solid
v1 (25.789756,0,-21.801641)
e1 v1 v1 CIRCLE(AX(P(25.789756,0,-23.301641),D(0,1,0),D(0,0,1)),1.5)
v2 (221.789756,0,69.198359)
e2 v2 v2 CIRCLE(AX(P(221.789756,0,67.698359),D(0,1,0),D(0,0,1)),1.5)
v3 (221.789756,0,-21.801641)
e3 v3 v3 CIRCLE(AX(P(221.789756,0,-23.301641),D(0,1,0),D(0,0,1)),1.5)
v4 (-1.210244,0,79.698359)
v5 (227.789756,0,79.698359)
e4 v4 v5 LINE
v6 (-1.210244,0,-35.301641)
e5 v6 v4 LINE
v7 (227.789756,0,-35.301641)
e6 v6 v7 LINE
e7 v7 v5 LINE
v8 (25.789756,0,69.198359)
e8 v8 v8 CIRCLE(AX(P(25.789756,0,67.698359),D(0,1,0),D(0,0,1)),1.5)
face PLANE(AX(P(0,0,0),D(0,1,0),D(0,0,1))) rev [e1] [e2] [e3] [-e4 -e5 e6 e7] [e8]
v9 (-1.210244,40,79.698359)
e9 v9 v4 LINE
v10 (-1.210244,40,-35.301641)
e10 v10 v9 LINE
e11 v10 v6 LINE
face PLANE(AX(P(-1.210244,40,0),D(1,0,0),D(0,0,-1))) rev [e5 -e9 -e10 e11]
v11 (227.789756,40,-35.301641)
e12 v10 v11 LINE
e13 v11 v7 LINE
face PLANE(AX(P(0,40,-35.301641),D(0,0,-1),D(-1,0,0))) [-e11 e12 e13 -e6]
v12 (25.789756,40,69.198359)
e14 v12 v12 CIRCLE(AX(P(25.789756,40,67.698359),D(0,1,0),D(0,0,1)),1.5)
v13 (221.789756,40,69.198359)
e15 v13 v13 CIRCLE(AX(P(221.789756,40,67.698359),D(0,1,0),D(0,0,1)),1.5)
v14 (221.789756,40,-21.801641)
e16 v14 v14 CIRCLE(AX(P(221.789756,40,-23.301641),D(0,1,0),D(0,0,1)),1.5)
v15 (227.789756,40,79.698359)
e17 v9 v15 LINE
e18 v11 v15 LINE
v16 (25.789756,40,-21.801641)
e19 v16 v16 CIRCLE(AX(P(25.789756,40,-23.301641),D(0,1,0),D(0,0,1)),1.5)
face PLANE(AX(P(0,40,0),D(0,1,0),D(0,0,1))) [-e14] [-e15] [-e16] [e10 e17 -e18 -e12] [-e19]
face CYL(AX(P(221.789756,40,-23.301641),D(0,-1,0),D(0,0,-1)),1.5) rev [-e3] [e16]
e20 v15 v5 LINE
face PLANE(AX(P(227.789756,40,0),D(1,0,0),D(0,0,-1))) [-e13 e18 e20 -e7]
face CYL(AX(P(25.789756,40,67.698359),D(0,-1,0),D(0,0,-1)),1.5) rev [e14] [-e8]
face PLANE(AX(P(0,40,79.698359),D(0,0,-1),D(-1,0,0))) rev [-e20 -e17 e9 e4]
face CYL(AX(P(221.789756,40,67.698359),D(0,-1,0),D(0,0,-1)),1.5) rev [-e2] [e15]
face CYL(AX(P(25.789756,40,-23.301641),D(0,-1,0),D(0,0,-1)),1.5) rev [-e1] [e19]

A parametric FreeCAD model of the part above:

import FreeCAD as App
import Part
import Sketcher

V = App.Vector

doc = App.newDocument("Part")
params = doc.addObject("Spreadsheet::Sheet", "Params")
for row, (alias, value) in enumerate([
    ("sketch1_diameter", "3 mm"),
    ("sketch1_width", "229 mm"),
    ("sketch1_height", "115 mm"),
    ("pad1_length", "40 mm"),
], start=1):
    params.set(f"A{row}", alias)
    params.set(f"B{row}", "=" + value)
    params.setAlias(f"B{row}", alias)

body = doc.addObject("PartDesign::Body", "Body")

# Sketch on XZ plane
sketch1 = doc.addObject("Sketcher::SketchObject", "Sketch")
body.addObject(sketch1)
sketch1.AttachmentSupport = (doc.XZ_Plane, [""])
sketch1.MapMode = "FlatFace"
sketch1.addGeometry([
    Part.LineSegment(V(-1.2, -35.3, 0), V(-1.2, 79.7, 0)),  # 0
    Part.LineSegment(V(-1.2, 79.7, 0), V(227.8, 79.7, 0)),  # 1
    Part.LineSegment(V(227.8, 79.7, 0), V(227.8, -35.3, 0)),  # 2
    Part.LineSegment(V(227.8, -35.3, 0), V(-1.2, -35.3, 0)),  # 3
    Part.Circle(V(25.8, 67.7, 0), V(0, 0, 1), 1.5),  # 4
    Part.Circle(V(221.8, 67.7, 0), V(0, 0, 1), 1.5),  # 5
    Part.Circle(V(25.8, -23.3, 0), V(0, 0, 1), 1.5),  # 6
    Part.Circle(V(221.8, -23.3, 0), V(0, 0, 1), 1.5),  # 7
], False)
sketch1.addConstraint([
    Sketcher.Constraint("Coincident", 0, 2, 1, 1),
    Sketcher.Constraint("Coincident", 1, 2, 2, 1),
    Sketcher.Constraint("Coincident", 2, 2, 3, 1),
    Sketcher.Constraint("Coincident", 3, 2, 0, 1),
    Sketcher.Constraint("Vertical", 0),
    Sketcher.Constraint("Horizontal", 1),
    Sketcher.Constraint("Vertical", 2),
    Sketcher.Constraint("Horizontal", 3),
    Sketcher.Constraint("Equal", 4, 5),
    Sketcher.Constraint("Equal", 5, 6),
    Sketcher.Constraint("Equal", 6, 7),
    Sketcher.Constraint("Horizontal", 4, 3, 5, 3),
    Sketcher.Constraint("Horizontal", 6, 3, 7, 3),
    Sketcher.Constraint("Vertical", 4, 3, 6, 3),
    Sketcher.Constraint("Vertical", 5, 3, 7, 3),
    Sketcher.Constraint("Diameter", 4, 3.0),
    Sketcher.Constraint("DistanceX", 1, 1, 1, 2, 229.0),
    Sketcher.Constraint("DistanceY", 0, 1, 0, 2, 115.0),
    Sketcher.Constraint("DistanceX", 4, 3, 5, 3, 196.0),
    Sketcher.Constraint("DistanceY", 6, 3, 4, 3, 91.0),
    Sketcher.Constraint("DistanceX", 0, 2, 4, 3, 27.0),
    Sketcher.Constraint("DistanceY", 4, 3, 0, 2, 12.0),
    Sketcher.Constraint("DistanceY", -1, 1, 4, 3, 67.698359),
    Sketcher.Constraint("DistanceX", -1, 1, 4, 3, 25.789756),
])
sketch1.setExpression("Constraints[15]", "Params.sketch1_diameter")
sketch1.setExpression("Constraints[16]", "Params.sketch1_width")
sketch1.setExpression("Constraints[17]", "Params.sketch1_height")
pad1 = doc.addObject("PartDesign::Pad", "Pad")
body.addObject(pad1)
pad1.Profile = sketch1
pad1.setExpression("Length", "Params.pad1_length")
pad1.Reversed = True

doc.recompute()
